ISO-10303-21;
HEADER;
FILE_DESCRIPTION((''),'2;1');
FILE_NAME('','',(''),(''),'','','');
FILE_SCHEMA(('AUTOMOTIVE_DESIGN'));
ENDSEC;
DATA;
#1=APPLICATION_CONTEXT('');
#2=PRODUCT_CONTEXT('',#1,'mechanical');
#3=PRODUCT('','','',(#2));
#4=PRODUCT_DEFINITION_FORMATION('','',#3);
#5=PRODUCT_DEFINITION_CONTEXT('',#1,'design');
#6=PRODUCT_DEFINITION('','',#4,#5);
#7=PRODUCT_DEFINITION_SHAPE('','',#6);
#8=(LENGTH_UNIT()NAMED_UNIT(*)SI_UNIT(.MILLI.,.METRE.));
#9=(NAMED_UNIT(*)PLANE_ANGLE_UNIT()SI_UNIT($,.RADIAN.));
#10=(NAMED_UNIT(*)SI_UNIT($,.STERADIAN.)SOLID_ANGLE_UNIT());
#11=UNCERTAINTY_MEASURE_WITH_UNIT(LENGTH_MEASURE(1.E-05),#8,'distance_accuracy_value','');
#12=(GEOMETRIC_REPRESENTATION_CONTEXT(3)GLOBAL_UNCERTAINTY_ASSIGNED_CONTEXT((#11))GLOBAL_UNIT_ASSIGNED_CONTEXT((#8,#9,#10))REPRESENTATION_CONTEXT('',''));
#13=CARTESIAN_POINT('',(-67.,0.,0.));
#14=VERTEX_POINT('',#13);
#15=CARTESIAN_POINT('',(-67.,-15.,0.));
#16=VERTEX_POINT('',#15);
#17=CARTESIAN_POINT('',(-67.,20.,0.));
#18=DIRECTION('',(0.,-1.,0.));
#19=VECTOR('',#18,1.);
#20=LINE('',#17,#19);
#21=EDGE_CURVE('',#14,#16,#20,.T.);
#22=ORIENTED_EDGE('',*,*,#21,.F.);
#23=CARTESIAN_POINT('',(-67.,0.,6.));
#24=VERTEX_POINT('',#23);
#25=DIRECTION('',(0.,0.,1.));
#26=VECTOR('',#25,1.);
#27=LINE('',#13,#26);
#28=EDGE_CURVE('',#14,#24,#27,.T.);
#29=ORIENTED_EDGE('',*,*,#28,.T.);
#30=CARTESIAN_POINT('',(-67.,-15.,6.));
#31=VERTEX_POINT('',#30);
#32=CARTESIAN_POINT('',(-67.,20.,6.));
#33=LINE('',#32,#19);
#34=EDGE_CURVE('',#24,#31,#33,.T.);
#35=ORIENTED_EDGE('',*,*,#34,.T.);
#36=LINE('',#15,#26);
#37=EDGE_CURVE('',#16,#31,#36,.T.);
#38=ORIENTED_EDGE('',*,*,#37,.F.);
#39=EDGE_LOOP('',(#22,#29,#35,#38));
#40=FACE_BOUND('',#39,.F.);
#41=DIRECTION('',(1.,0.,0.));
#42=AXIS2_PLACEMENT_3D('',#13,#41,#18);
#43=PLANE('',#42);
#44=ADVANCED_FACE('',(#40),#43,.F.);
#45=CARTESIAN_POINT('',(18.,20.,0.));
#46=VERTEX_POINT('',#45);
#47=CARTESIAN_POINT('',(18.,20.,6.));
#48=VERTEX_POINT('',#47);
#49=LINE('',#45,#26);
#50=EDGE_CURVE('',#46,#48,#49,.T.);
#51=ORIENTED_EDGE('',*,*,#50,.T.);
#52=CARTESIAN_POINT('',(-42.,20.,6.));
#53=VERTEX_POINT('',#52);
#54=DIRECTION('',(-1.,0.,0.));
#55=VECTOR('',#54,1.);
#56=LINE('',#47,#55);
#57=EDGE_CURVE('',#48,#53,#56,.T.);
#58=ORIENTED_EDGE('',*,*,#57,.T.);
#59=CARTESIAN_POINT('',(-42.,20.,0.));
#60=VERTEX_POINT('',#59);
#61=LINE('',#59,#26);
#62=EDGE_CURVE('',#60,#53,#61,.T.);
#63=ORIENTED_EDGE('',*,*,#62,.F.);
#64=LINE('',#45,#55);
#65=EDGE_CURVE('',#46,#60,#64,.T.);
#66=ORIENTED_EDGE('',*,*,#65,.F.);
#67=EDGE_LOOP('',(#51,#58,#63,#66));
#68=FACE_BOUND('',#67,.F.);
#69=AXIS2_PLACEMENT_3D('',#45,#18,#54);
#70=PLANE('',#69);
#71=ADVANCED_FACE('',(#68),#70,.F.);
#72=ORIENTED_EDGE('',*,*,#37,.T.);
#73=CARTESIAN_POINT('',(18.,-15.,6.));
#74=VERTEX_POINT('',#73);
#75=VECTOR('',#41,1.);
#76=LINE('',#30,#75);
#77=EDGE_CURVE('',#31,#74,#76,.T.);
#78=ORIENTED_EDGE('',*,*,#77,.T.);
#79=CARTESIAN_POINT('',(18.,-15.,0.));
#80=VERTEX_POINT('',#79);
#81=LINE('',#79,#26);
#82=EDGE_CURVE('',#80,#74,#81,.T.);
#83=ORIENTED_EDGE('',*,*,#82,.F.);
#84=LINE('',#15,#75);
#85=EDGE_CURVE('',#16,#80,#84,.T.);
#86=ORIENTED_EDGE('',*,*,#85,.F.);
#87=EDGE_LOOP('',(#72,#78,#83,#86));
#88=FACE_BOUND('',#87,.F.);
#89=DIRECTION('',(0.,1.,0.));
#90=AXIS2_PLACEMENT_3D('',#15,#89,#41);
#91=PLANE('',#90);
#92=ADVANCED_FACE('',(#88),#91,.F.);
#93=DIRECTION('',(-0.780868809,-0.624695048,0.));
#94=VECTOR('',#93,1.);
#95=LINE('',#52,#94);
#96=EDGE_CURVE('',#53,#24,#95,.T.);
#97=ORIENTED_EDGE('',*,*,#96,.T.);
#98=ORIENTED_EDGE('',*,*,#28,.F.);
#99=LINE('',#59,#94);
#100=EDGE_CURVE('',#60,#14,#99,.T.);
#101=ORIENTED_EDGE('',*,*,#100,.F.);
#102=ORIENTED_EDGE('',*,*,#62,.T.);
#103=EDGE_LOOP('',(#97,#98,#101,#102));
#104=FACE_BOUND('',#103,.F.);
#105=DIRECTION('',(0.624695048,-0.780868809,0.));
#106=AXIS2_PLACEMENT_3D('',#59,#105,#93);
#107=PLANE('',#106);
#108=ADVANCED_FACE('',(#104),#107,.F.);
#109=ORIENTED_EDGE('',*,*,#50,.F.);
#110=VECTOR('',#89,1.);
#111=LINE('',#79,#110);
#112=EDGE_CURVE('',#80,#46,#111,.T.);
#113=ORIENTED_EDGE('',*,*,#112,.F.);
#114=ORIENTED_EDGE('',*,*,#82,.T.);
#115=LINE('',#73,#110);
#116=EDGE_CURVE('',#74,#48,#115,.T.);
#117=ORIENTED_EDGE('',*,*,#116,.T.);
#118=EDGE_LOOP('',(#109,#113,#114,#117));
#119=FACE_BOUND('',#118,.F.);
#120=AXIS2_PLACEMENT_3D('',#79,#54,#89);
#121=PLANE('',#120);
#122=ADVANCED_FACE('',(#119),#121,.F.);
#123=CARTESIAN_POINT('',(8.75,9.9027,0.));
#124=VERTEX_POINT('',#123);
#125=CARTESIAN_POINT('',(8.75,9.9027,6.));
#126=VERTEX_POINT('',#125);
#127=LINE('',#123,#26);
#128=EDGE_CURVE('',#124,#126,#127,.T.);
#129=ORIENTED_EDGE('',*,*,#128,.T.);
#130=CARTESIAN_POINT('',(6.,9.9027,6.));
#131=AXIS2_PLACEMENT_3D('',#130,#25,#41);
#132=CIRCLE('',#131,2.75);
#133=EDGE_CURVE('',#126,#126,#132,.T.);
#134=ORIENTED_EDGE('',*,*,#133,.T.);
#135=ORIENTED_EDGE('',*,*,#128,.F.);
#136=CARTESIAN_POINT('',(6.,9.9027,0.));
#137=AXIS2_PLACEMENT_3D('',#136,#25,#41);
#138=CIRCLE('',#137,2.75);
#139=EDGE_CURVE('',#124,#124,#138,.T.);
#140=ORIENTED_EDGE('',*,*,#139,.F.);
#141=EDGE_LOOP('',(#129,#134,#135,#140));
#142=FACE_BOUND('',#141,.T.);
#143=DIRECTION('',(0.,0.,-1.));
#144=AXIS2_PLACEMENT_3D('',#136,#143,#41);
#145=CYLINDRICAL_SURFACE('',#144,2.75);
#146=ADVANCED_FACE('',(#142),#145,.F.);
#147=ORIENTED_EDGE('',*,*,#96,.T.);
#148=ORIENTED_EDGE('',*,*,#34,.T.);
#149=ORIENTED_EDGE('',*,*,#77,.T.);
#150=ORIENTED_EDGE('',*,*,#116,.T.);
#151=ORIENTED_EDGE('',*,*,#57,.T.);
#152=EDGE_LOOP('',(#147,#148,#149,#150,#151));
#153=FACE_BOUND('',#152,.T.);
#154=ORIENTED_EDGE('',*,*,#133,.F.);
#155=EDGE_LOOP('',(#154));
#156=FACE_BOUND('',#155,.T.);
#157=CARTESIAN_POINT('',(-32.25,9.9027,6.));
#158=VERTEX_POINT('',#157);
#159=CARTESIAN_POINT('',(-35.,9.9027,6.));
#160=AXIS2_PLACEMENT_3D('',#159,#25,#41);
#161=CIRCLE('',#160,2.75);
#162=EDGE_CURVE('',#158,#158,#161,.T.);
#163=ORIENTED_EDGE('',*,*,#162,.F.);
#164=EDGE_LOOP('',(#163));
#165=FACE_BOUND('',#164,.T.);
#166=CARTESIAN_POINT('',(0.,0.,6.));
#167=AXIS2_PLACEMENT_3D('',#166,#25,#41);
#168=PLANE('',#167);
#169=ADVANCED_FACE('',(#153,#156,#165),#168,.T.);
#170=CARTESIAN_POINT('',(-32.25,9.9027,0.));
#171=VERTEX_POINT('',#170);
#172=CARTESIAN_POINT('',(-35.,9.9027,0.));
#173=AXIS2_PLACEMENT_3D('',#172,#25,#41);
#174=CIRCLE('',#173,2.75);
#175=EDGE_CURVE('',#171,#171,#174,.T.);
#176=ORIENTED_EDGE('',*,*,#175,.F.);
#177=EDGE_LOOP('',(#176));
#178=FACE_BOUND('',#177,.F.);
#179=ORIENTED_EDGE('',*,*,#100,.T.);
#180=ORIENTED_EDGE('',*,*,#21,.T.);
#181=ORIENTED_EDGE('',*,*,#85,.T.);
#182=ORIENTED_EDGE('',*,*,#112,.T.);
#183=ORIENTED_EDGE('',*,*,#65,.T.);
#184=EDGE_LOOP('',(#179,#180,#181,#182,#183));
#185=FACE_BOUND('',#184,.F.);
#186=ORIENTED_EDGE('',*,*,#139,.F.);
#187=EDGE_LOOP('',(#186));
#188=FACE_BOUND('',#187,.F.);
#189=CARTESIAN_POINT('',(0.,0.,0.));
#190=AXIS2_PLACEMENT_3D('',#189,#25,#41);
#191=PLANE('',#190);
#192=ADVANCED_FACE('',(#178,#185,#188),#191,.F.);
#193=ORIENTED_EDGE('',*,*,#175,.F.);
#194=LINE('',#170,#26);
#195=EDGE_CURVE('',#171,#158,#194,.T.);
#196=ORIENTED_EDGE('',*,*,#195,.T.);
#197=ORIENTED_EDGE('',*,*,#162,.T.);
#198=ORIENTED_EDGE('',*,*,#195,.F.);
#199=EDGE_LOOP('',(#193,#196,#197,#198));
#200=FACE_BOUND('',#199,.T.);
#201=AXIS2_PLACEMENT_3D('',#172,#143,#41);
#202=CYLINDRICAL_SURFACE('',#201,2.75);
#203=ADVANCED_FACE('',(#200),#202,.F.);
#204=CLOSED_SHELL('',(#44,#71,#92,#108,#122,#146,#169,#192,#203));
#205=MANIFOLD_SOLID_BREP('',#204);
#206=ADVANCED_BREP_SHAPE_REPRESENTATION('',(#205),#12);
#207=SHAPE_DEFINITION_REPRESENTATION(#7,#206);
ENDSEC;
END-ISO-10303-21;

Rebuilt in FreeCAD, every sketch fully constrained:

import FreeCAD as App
import Part
import Sketcher

V = App.Vector

doc = App.newDocument("Part")
body = doc.addObject("PartDesign::Body", "Body")

sketch1 = body.newObject("Sketcher::SketchObject", "Sketch")
sketch1.AttachmentSupport = (doc.getObject("XY_Plane"), [""])
sketch1.MapMode = "FlatFace"
sketch1.addGeometry(Part.LineSegment(V(-67, -15, 0), V(18, -15, 0)), False)
sketch1.addGeometry(Part.LineSegment(V(18, -15, 0), V(18, 20, 0)), False)
sketch1.addGeometry(Part.LineSegment(V(18, 20, 0), V(-42, 20, 0)), False)
sketch1.addGeometry(Part.LineSegment(V(-42, 20, 0), V(-67, 0, 0)), False)
sketch1.addGeometry(Part.LineSegment(V(-67, 0, 0), V(-67, -15, 0)), False)
sketch1.addGeometry(Part.Circle(V(-35, 9.9027, 0), V(0, 0, 1), 2.75), False)
sketch1.addGeometry(Part.Circle(V(6, 9.9027, 0), V(0, 0, 1), 2.75), False)
sketch1.addConstraint(Sketcher.Constraint("Coincident", 0, 2, 1, 1))
sketch1.addConstraint(Sketcher.Constraint("Coincident", 1, 2, 2, 1))
sketch1.addConstraint(Sketcher.Constraint("Coincident", 2, 2, 3, 1))
sketch1.addConstraint(Sketcher.Constraint("Coincident", 3, 2, 4, 1))
sketch1.addConstraint(Sketcher.Constraint("Coincident", 4, 2, 0, 1))
sketch1.addConstraint(Sketcher.Constraint("Horizontal", 0))
sketch1.addConstraint(Sketcher.Constraint("Vertical", 1))
sketch1.addConstraint(Sketcher.Constraint("Horizontal", 2))
sketch1.addConstraint(Sketcher.Constraint("Vertical", 4))
sketch1.addConstraint(Sketcher.Constraint("Equal", 5, 6))
sketch1.addConstraint(Sketcher.Constraint("PointOnObject", 3, 2, -1))
sketch1.addConstraint(Sketcher.Constraint("Horizontal", 5, 3, 6, 3))
sketch1.addConstraint(Sketcher.Constraint("Diameter", 5, 5.5))
sketch1.addConstraint(Sketcher.Constraint("DistanceX", 0, 1, 0, 2, 85.0))
sketch1.addConstraint(Sketcher.Constraint("DistanceY", 1, 1, 1, 2, 35.0))
sketch1.addConstraint(Sketcher.Constraint("DistanceY", 4, 2, 4, 1, 15.0))
sketch1.addConstraint(Sketcher.Constraint("DistanceX", 5, 3, -1, 1, 35.0))
sketch1.addConstraint(Sketcher.Constraint("DistanceX", -1, 1, 6, 3, 6.0))
sketch1.addConstraint(Sketcher.Constraint("DistanceX", -1, 1, 0, 2, 18.0))
sketch1.addConstraint(Sketcher.Constraint("DistanceX", 3, 2, 2, 2, 25.0))
sketch1.addConstraint(Sketcher.Constraint("DistanceY", -1, 1, 5, 3, 9.9027))
pad1 = body.newObject("PartDesign::Pad", "Pad")
pad1.Profile = sketch1
pad1.Length = 6

doc.recompute()
